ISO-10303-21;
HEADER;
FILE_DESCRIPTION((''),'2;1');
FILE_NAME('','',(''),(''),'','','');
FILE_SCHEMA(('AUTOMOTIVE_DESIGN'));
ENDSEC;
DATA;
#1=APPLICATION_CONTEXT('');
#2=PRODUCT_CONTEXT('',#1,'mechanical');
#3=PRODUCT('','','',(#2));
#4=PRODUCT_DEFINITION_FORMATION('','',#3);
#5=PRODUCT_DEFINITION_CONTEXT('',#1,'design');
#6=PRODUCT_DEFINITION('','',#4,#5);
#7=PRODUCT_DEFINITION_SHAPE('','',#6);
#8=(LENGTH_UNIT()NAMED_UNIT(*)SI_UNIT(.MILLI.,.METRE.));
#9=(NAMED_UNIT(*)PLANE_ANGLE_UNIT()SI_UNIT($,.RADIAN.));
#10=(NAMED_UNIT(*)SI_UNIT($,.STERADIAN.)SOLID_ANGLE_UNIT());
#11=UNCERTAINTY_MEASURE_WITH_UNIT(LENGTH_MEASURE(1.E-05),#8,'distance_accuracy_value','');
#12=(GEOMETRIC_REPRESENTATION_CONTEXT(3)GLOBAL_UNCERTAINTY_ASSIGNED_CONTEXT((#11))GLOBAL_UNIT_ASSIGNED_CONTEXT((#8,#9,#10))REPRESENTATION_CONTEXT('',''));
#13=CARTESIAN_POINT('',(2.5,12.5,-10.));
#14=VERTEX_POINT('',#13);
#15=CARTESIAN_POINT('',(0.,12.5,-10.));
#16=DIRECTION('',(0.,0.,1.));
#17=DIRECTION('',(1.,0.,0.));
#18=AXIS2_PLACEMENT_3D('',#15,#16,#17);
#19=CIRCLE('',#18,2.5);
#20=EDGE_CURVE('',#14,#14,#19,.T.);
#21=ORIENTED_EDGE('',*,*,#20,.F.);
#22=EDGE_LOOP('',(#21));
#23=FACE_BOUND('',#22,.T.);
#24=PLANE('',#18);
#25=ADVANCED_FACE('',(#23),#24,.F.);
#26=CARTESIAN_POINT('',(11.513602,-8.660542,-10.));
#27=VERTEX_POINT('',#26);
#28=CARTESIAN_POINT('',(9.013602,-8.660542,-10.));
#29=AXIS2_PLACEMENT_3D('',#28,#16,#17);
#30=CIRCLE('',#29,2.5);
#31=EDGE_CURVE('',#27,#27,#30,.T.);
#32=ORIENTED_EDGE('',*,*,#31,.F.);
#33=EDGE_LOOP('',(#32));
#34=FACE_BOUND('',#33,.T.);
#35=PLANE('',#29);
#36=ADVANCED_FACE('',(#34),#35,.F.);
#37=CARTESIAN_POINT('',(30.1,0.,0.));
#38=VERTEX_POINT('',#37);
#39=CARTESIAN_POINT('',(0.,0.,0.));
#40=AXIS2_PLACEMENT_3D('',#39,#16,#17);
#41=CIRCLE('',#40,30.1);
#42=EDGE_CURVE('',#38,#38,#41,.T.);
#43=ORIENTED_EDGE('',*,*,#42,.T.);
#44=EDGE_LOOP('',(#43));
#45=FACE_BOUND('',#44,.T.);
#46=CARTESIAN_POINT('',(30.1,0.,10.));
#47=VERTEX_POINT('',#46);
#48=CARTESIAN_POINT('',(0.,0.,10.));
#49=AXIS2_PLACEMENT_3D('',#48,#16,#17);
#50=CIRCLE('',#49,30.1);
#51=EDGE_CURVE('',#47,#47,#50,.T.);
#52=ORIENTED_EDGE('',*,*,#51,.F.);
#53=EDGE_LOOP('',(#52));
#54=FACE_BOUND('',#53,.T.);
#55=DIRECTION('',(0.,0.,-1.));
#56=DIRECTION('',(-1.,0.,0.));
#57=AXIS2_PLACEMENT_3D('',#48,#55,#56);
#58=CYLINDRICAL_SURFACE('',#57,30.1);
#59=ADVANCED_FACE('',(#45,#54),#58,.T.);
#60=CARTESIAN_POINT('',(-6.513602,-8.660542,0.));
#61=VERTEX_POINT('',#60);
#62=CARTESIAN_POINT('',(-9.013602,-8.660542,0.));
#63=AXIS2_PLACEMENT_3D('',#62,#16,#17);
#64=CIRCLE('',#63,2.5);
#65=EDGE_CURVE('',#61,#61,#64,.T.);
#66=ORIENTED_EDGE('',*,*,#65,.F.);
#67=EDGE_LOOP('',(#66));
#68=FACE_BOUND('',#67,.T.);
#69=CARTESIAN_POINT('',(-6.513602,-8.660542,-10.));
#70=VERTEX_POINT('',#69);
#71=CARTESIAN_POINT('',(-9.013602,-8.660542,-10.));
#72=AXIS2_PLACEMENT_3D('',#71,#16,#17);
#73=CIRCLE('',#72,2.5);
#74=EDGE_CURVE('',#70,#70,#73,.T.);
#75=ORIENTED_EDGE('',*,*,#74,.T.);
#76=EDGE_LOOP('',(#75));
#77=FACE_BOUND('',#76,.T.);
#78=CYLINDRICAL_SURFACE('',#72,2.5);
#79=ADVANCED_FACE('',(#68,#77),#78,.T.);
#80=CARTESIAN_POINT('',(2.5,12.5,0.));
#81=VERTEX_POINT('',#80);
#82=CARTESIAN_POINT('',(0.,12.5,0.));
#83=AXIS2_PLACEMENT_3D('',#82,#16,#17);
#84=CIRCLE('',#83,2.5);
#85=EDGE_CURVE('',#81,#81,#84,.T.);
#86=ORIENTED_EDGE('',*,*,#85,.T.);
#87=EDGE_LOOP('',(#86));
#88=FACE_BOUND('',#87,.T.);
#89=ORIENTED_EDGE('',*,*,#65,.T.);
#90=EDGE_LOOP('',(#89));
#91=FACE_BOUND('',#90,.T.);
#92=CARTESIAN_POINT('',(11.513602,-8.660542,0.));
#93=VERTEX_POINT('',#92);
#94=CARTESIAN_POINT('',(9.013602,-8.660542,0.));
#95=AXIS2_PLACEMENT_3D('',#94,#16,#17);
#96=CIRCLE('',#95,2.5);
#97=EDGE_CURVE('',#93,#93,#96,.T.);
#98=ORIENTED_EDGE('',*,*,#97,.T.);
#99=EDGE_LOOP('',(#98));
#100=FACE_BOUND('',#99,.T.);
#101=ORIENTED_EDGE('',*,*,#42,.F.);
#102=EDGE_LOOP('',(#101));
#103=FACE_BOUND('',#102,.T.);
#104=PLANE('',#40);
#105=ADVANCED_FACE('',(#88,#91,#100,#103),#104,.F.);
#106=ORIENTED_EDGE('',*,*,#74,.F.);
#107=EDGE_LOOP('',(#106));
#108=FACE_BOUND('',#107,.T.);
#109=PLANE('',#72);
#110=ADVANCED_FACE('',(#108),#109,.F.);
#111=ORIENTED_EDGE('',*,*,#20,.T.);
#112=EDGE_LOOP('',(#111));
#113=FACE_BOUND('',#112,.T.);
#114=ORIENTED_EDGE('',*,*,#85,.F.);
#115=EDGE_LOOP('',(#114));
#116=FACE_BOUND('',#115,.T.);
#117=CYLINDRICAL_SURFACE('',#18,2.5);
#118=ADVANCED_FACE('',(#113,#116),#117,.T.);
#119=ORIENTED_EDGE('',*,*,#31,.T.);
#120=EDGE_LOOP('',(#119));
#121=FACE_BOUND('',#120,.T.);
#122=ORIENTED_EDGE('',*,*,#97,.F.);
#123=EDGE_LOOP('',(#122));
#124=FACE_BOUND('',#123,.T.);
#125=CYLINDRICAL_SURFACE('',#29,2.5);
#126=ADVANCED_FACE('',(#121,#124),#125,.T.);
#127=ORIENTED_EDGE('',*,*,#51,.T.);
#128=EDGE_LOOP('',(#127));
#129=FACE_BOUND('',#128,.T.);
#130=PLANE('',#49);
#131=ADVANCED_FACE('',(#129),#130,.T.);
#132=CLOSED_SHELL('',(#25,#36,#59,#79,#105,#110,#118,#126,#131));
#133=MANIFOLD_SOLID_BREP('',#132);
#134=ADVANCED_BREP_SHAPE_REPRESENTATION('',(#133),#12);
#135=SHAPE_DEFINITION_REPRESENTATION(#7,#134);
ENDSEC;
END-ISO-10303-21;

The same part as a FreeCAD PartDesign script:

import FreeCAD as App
import Part
import Sketcher
from FreeCAD import Vector

doc = App.newDocument("Part")
body = doc.addObject("PartDesign::Body", "Body")

# Sketch on XY plane
sketch1 = body.newObject("Sketcher::SketchObject", "Sketch")
sketch1.AttachmentSupport = (doc.getObject("XY_Plane"), [""])
sketch1.MapMode = "FlatFace"
sketch1.addGeometry(Part.Circle(Vector(0, 0, 0), Vector(0, 0, 1), 30), False)
sketch1.addConstraint([
    Sketcher.Constraint("Coincident", 0, 3, -1, 1),
    Sketcher.Constraint("Diameter", 0, 60.2),
])
pad1 = body.newObject("PartDesign::Pad", "Pad")
pad1.Profile = sketch1
pad1.Length = 10

# Sketch on XY plane
sketch2 = body.newObject("Sketcher::SketchObject", "Sketch001")
sketch2.AttachmentSupport = (doc.getObject("XY_Plane"), [""])
sketch2.MapMode = "FlatFace"
sketch2.addGeometry([
    Part.Circle(Vector(0, 12.5, 0), Vector(0, 0, 1), 2.5),
    Part.Circle(Vector(-9, -8.7, 0), Vector(0, 0, 1), 2.5),
    Part.Circle(Vector(9, -8.7, 0), Vector(0, 0, 1), 2.5),
], False)
sketch2.addConstraint([
    Sketcher.Constraint("Equal", 0, 1),
    Sketcher.Constraint("Equal", 1, 2),
    Sketcher.Constraint("Symmetric", 1, 3, 2, 3, -2),
    Sketcher.Constraint("PointOnObject", 0, 3, -2),
    Sketcher.Constraint("Diameter", 0, 5.0),
    Sketcher.Constraint("DistanceY", -1, 1, 0, 3, 12.5),
    Sketcher.Constraint("DistanceX", 1, 3, -1, 1, 9.013602),
    Sketcher.Constraint("DistanceY", 1, 3, -1, 1, 8.660542),
])
pad2 = body.newObject("PartDesign::Pad", "Pad001")
pad2.Profile = sketch2
pad2.Length = 10
pad2.Reversed = True

doc.recompute()
